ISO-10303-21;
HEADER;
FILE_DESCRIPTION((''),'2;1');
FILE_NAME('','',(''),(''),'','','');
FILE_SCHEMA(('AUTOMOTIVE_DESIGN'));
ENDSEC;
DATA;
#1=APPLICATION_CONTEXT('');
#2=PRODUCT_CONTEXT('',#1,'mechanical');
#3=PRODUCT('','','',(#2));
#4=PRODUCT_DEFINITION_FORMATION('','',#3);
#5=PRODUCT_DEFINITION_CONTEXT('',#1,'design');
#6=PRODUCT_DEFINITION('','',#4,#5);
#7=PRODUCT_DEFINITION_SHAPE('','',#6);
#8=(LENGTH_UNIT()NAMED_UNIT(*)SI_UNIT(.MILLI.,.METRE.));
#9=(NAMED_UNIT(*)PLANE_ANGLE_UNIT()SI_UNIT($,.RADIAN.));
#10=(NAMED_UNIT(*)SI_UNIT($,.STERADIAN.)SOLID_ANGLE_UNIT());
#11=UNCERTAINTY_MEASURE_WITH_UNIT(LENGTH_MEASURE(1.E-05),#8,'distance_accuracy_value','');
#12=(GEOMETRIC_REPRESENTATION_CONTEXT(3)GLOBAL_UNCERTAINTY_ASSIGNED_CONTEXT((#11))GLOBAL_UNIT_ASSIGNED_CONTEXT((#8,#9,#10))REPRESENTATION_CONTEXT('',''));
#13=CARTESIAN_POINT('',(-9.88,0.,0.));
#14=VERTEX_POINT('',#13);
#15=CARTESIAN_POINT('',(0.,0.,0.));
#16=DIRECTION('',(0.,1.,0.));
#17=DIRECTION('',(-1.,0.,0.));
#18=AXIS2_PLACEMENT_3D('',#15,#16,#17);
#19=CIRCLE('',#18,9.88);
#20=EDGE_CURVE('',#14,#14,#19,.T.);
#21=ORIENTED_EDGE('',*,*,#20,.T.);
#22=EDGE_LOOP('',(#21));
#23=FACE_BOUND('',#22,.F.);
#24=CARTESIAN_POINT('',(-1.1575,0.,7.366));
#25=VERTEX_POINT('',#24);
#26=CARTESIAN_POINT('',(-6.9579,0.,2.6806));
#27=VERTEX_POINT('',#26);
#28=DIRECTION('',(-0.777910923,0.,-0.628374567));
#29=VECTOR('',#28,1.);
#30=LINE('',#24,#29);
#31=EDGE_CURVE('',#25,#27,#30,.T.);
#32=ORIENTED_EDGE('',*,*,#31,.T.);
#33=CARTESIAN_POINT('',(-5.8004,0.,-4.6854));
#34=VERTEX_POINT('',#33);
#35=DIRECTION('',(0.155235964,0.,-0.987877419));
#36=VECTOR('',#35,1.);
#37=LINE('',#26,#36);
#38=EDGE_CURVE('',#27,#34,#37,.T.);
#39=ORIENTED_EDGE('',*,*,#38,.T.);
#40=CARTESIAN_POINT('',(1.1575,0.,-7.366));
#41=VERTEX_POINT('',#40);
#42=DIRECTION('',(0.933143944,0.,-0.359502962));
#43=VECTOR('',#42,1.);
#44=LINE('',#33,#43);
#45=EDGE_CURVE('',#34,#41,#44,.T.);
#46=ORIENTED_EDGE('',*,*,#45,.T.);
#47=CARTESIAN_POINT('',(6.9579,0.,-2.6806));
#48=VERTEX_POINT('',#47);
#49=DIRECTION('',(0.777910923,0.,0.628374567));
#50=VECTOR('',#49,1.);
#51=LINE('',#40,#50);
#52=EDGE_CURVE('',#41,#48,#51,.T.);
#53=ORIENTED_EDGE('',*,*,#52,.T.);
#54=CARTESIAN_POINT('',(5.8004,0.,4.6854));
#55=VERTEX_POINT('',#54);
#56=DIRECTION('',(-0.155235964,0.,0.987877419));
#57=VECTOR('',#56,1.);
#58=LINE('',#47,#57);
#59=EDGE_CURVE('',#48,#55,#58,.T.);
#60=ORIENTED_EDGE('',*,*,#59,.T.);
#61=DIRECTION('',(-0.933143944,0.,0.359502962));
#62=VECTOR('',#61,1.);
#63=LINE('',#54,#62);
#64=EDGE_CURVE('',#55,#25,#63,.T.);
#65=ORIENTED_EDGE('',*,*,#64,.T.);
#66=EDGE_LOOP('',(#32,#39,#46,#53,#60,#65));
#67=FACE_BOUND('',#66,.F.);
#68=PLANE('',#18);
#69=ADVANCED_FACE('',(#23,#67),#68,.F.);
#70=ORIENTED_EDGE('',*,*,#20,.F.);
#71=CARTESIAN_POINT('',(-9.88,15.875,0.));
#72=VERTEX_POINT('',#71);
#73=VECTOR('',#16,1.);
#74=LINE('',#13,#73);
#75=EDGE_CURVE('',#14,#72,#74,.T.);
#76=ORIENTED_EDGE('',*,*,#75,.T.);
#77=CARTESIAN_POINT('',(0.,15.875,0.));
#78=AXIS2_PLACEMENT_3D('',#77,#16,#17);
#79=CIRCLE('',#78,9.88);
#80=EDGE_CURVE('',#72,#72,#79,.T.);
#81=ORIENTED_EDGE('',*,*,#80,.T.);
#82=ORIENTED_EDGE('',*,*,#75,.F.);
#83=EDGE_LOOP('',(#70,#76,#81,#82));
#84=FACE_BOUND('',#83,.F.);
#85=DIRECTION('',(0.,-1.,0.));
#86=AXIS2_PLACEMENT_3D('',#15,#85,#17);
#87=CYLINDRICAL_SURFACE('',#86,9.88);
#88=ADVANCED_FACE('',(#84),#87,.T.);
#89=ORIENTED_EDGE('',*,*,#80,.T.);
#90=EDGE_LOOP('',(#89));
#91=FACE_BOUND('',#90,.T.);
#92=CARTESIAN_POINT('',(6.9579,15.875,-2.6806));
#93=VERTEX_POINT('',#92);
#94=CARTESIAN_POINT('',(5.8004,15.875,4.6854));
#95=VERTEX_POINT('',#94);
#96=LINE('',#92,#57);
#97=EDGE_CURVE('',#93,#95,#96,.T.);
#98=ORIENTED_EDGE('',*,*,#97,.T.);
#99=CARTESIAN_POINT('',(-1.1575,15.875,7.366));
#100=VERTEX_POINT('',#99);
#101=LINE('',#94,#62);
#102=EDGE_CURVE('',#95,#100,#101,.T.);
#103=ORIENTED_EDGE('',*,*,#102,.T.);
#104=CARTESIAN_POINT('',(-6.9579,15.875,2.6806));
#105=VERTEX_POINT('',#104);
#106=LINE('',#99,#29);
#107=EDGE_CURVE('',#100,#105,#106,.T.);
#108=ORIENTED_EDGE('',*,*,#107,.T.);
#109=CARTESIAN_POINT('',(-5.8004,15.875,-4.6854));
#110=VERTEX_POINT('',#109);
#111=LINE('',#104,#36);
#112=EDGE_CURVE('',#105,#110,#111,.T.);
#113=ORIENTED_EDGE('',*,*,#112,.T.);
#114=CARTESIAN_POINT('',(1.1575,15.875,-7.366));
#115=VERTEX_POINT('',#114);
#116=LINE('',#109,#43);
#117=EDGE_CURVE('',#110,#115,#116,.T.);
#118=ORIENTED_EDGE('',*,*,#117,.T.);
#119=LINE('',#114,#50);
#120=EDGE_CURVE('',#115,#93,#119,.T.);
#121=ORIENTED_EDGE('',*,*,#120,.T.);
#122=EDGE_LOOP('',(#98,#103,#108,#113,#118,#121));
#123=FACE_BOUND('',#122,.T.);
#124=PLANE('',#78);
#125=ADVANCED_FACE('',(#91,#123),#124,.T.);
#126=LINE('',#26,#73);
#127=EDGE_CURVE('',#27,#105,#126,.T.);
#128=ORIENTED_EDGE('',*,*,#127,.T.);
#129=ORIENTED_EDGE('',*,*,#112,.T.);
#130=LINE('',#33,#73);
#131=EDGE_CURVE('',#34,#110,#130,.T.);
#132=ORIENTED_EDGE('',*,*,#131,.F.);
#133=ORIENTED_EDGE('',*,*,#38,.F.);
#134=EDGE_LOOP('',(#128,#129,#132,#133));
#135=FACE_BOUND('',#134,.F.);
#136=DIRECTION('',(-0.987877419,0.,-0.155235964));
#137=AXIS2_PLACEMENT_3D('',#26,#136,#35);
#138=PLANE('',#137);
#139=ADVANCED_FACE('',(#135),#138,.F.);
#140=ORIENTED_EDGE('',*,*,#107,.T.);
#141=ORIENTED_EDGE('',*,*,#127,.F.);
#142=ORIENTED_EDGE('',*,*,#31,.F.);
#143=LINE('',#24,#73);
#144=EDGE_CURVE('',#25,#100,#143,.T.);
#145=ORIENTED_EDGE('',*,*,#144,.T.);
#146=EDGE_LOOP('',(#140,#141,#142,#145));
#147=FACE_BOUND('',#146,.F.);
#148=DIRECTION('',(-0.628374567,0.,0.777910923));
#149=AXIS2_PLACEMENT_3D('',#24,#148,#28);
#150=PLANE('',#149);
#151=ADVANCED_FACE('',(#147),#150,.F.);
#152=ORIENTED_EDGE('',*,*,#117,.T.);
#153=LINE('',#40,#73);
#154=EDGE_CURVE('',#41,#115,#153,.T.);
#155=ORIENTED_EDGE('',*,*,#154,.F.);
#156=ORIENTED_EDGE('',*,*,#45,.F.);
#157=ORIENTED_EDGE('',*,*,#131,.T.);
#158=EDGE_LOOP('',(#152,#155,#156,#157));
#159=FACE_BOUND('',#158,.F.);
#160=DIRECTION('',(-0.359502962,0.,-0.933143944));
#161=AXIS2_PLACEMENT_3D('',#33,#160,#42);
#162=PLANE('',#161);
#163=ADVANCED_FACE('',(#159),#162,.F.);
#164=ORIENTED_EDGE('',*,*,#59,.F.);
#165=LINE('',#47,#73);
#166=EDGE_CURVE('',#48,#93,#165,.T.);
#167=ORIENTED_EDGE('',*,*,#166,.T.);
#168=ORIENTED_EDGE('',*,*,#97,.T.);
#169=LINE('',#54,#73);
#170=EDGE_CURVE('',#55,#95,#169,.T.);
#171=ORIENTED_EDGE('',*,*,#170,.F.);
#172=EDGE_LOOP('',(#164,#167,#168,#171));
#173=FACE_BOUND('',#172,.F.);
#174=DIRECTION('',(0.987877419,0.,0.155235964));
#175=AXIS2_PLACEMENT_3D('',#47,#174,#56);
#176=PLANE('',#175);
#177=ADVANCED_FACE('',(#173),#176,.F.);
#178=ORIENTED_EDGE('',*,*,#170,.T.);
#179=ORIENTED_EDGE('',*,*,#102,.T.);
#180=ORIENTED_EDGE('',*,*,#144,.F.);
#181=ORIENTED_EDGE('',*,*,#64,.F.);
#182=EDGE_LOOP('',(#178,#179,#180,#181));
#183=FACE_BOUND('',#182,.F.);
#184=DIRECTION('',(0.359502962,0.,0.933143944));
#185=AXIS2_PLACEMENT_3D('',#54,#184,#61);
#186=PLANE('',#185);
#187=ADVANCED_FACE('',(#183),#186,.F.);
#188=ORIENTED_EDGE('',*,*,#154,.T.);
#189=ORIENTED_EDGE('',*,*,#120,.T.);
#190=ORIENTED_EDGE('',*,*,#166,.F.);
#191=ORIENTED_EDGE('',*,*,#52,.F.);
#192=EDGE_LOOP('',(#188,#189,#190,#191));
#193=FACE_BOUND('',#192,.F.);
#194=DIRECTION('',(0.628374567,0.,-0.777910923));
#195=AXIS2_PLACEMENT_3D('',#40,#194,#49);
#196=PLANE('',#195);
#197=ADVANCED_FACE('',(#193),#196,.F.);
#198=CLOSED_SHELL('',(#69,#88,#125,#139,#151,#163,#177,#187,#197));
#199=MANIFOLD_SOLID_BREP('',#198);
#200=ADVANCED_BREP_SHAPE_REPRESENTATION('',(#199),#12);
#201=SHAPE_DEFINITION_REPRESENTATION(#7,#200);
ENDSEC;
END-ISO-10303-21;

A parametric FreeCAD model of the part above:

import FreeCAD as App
import Part
import Sketcher
Q = App.Units.Quantity

doc = App.newDocument("Part")
params = doc.addObject("Spreadsheet::Sheet", "Params")
for row, (alias, value) in enumerate([
    ("pad1_length", "0.625 in"),
], start=1):
    params.set(f"A{row}", alias)
    params.set(f"B{row}", "=" + value)
    params.setAlias(f"B{row}", alias)

body = doc.addObject("PartDesign::Body", "Body")

# Sketch on XZ plane
sketch1 = body.newObject("Sketcher::SketchObject", "Sketch")
sketch1.AttachmentSupport = (doc.getObject("XZ_Plane"), [""])
sketch1.MapMode = "FlatFace"
sketch1.addGeometry(Part.Circle(App.Vector(0, 0, 0), App.Vector(0, 0, 1), 10), False)
sketch1.addGeometry(Part.LineSegment(App.Vector(-7, 3, 0), App.Vector(-6, -5, 0)), False)
sketch1.addGeometry(Part.LineSegment(App.Vector(-6, -5, 0), App.Vector(1, -7, 0)), False)
sketch1.addGeometry(Part.LineSegment(App.Vector(1, -7, 0), App.Vector(7, -3, 0)), False)
sketch1.addGeometry(Part.LineSegment(App.Vector(7, -3, 0), App.Vector(6, 5, 0)), False)
sketch1.addGeometry(Part.LineSegment(App.Vector(6, 5, 0), App.Vector(-1, 7, 0)), False)
sketch1.addGeometry(Part.LineSegment(App.Vector(-1, 7, 0), App.Vector(-7, 3, 0)), False)
sketch1.addConstraint(Sketcher.Constraint("Coincident", 1, 2, 2, 1))
sketch1.addConstraint(Sketcher.Constraint("Coincident", 2, 2, 3, 1))
sketch1.addConstraint(Sketcher.Constraint("Coincident", 3, 2, 4, 1))
sketch1.addConstraint(Sketcher.Constraint("Coincident", 4, 2, 5, 1))
sketch1.addConstraint(Sketcher.Constraint("Coincident", 5, 2, 6, 1))
sketch1.addConstraint(Sketcher.Constraint("Coincident", 6, 2, 1, 1))
sketch1.addConstraint(Sketcher.Constraint("Coincident", 0, 3, -1, 1))
sketch1.addConstraint(Sketcher.Constraint("Symmetric", 1, 2, 4, 2, -1, 1))
sketch1.addConstraint(Sketcher.Constraint("Symmetric", 2, 2, 5, 2, -1, 1))
sketch1.addConstraint(Sketcher.Constraint("Symmetric", 3, 2, 6, 2, -1, 1))
sketch1.addConstraint(Sketcher.Constraint("Equal", 1, 2))
sketch1.addConstraint(Sketcher.Constraint("Equal", 2, 3))
sketch1.addConstraint(Sketcher.Constraint("DistanceY", 2, 2, -1, 1, Q("0.29 in")))
sketch1.addConstraint(Sketcher.Constraint("DistanceY", 3, 2, 4, 2, Q("0.29 in")))
sketch1.addConstraint(Sketcher.Constraint("Diameter", 0, Q("19.76 mm")))
sketch1.addConstraint(Sketcher.Constraint("Angle", 1, Q("-81.0695 deg")))
sketch1.addConstraint(Sketcher.Constraint("Angle", 2, Q("-21.0697 deg")))
pad1 = body.newObject("PartDesign::Pad", "Pad")
pad1.Profile = sketch1
pad1.setExpression("Length", "Params.pad1_length")
pad1.Reversed = True

doc.recompute()
